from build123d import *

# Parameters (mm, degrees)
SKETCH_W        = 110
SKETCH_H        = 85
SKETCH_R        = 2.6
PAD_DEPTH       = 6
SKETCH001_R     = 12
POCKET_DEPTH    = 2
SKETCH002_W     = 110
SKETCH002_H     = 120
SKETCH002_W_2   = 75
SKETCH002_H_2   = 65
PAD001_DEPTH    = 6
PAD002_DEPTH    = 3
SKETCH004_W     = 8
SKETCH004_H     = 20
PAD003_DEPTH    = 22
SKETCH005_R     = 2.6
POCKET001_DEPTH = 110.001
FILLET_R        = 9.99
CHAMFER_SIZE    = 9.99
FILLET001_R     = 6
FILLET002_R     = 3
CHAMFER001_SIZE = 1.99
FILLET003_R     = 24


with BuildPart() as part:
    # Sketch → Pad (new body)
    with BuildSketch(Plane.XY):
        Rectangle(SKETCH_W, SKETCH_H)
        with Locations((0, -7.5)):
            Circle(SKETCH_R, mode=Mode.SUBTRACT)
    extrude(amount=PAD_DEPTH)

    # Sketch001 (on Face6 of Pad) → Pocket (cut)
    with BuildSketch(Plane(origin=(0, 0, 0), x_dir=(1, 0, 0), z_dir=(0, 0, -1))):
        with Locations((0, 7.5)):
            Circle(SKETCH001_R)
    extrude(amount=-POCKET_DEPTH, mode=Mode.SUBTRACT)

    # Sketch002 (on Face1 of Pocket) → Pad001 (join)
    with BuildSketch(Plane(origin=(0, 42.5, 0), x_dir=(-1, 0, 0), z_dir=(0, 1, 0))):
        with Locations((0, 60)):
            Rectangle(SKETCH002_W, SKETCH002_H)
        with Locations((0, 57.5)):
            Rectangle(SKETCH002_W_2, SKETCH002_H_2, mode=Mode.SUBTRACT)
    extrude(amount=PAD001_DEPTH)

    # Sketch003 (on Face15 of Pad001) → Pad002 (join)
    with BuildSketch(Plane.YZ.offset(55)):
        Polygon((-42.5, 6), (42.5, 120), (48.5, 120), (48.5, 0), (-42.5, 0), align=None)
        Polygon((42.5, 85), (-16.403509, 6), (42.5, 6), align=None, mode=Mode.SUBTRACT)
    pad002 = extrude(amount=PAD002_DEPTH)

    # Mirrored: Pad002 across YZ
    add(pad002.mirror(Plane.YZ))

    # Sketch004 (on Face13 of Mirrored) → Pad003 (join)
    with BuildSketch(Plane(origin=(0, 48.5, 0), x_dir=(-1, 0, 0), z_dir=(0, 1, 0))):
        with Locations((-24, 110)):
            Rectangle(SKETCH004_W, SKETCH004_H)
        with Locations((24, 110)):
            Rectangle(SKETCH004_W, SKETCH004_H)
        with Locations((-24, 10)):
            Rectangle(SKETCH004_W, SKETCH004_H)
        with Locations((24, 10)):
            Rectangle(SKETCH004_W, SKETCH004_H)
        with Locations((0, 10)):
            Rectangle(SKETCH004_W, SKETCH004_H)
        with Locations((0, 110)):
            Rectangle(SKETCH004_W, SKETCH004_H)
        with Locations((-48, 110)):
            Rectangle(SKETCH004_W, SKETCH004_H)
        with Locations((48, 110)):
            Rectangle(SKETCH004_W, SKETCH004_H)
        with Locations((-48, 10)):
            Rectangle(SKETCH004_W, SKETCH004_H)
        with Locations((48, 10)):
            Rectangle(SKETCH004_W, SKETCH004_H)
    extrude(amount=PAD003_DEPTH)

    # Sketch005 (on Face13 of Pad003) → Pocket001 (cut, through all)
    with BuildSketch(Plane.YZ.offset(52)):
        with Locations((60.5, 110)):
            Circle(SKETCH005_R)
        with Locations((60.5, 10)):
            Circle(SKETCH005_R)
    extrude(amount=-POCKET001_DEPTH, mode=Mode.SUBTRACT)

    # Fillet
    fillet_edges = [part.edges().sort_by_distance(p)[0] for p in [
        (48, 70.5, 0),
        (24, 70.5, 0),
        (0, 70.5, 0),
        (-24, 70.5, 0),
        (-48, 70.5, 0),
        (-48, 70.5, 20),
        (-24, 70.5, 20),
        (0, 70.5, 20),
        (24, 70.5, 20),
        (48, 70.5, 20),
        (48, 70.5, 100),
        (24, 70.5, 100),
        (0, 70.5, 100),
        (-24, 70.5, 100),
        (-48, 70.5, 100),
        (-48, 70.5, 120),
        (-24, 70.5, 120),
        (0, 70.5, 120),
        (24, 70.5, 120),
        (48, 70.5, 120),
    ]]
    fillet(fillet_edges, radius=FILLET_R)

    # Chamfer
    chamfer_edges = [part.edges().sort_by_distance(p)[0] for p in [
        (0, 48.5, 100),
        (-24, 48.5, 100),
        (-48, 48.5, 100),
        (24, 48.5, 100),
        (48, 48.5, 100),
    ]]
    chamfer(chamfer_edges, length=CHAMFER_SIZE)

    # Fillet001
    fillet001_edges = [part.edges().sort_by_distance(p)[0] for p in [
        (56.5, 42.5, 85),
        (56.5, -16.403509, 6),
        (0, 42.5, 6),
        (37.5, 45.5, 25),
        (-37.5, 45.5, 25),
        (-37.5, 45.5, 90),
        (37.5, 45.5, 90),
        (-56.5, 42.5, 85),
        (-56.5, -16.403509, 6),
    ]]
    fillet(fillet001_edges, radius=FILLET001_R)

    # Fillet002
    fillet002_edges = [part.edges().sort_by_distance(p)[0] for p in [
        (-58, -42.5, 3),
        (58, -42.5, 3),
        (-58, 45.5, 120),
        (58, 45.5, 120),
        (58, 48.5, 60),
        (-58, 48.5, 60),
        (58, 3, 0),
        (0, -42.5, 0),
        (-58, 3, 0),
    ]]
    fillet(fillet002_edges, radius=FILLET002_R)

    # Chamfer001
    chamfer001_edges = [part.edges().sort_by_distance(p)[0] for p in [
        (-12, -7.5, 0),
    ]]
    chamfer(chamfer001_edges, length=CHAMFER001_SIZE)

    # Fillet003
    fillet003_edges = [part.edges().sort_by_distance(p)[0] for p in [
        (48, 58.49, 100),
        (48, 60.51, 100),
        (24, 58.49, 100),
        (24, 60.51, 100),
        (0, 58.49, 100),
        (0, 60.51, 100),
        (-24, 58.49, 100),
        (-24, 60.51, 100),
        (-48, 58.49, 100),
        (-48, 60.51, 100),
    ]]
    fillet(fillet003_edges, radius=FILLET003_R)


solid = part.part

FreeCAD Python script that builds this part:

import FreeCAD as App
import Part
import Sketcher

V = App.Vector
Q = App.Units.Quantity


def edges_at(feature, points):
    """Names of the edges that pass closest to the given points."""
    edges = feature.Shape.Edges
    near = lambda p: min(range(len(edges)), key=lambda i: edges[i].distToShape(Part.Vertex(*p))[0])
    return sorted({f"Edge{near(p) + 1}" for p in points})

doc = App.newDocument("Part")
body = doc.addObject("PartDesign::Body", "Body")

sketch1 = doc.addObject("Sketcher::SketchObject", "Sketch")
body.addObject(sketch1)
sketch1.AttachmentSupport = (doc.XY_Plane, [""])
sketch1.MapMode = "FlatFace"
sketch1.addGeometry([
    Part.LineSegment(V(-55, 42.5, 0), V(-55, -42.5, 0)),
    Part.LineSegment(V(-55, -42.5, 0), V(55, -42.5, 0)),
    Part.LineSegment(V(55, -42.5, 0), V(55, 42.5, 0)),
    Part.LineSegment(V(55, 42.5, 0), V(-55, 42.5, 0)),
    Part.Circle(V(0, -7.5, 0), V(0, 0, 1), 2.6),
], False)
sketch1.addConstraint([
    Sketcher.Constraint("Coincident", 0, 2, 1, 1),
    Sketcher.Constraint("Coincident", 1, 2, 2, 1),
    Sketcher.Constraint("Coincident", 2, 2, 3, 1),
    Sketcher.Constraint("Coincident", 3, 2, 0, 1),
    Sketcher.Constraint("Vertical", 0),
    Sketcher.Constraint("Horizontal", 1),
    Sketcher.Constraint("Vertical", 2),
    Sketcher.Constraint("Horizontal", 3),
    Sketcher.Constraint("Symmetric", 0, 2, 2, 2, -1, 1),
    Sketcher.Constraint("PointOnObject", 4, 3, -2),
    Sketcher.Constraint("Diameter", 4, Q("5.2 mm")),
    Sketcher.Constraint("DistanceX", 1, 1, 1, 2, Q("110 mm")),
    Sketcher.Constraint("DistanceY", 0, 2, 0, 1, Q("85 mm")),
    Sketcher.Constraint("DistanceY", 0, 2, 4, 3, Q("35 mm")),
])
pad1 = doc.addObject("PartDesign::Pad", "Pad")
body.addObject(pad1)
pad1.Profile = sketch1
pad1.Length = 6

sketch2 = doc.addObject("Sketcher::SketchObject", "Sketch001")
body.addObject(sketch2)
sketch2.AttachmentSupport = (doc.XY_Plane, [""])
sketch2.MapMode = "FlatFace"
sketch2.addGeometry(Part.Circle(V(0, -8, 0), V(0, 0, 1), 12), False)
sketch2.addConstraint([
    Sketcher.Constraint("PointOnObject", 0, 3, -2),
    Sketcher.Constraint("Diameter", 0, Q("24 mm")),
    Sketcher.Constraint("DistanceY", 0, 3, -1, 1, Q("7.5 mm")),
])
pocket1 = doc.addObject("PartDesign::Pocket", "Pocket")
body.addObject(pocket1)
pocket1.Profile = sketch2
pocket1.Length = 2
pocket1.Reversed = True

sketch3 = doc.addObject("Sketcher::SketchObject", "Sketch002")
body.addObject(sketch3)
sketch3.AttachmentSupport = (doc.XZ_Plane, [""])
sketch3.MapMode = "FlatFace"
sketch3.AttachmentOffset = App.Placement(V(0, 0, -42.5), App.Rotation())
sketch3.addGeometry([
    Part.LineSegment(V(55, 120, 0), V(55, 0, 0)),
    Part.LineSegment(V(55, 0, 0), V(-55, 0, 0)),
    Part.LineSegment(V(-55, 0, 0), V(-55, 120, 0)),
    Part.LineSegment(V(-55, 120, 0), V(55, 120, 0)),
    Part.LineSegment(V(-38, 25, 0), V(38, 25, 0)),
    Part.LineSegment(V(38, 25, 0), V(38, 90, 0)),
    Part.LineSegment(V(38, 90, 0), V(-38, 90, 0)),
    Part.LineSegment(V(-38, 90, 0), V(-38, 25, 0)),
], False)
sketch3.addConstraint([
    Sketcher.Constraint("Coincident", 0, 2, 1, 1),
    Sketcher.Constraint("Coincident", 1, 2, 2, 1),
    Sketcher.Constraint("Coincident", 2, 2, 3, 1),
    Sketcher.Constraint("Coincident", 3, 2, 0, 1),
    Sketcher.Constraint("Coincident", 4, 2, 5, 1),
    Sketcher.Constraint("Coincident", 5, 2, 6, 1),
    Sketcher.Constraint("Coincident", 6, 2, 7, 1),
    Sketcher.Constraint("Coincident", 7, 2, 4, 1),
    Sketcher.Constraint("Vertical", 0),
    Sketcher.Constraint("Horizontal", 1),
    Sketcher.Constraint("Vertical", 2),
    Sketcher.Constraint("Horizontal", 3),
    Sketcher.Constraint("Horizontal", 4),
    Sketcher.Constraint("Vertical", 5),
    Sketcher.Constraint("Horizontal", 6),
    Sketcher.Constraint("Vertical", 7),
    Sketcher.Constraint("Symmetric", 0, 2, 1, 2, -1, 1),
    Sketcher.Constraint("DistanceX", 1, 2, 1, 1, Q("110 mm")),
    Sketcher.Constraint("DistanceX", 4, 1, 4, 2, Q("75 mm")),
    Sketcher.Constraint("DistanceY", 0, 2, 0, 1, Q("120 mm")),
    Sketcher.Constraint("DistanceY", 5, 1, 5, 2, Q("65 mm")),
    Sketcher.Constraint("DistanceY", -1, 1, 4, 2, Q("25 mm")),
    Sketcher.Constraint("DistanceX", -1, 1, 4, 2, Q("37.5 mm")),
])
pad2 = doc.addObject("PartDesign::Pad", "Pad001")
body.addObject(pad2)
pad2.Profile = sketch3
pad2.Length = 6
pad2.Reversed = True

sketch4 = doc.addObject("Sketcher::SketchObject", "Sketch003")
body.addObject(sketch4)
sketch4.AttachmentSupport = (doc.YZ_Plane, [""])
sketch4.MapMode = "FlatFace"
sketch4.AttachmentOffset = App.Placement(V(0, 0, 55), App.Rotation())
sketch4.addGeometry([
    Part.LineSegment(V(42, 120, 0), V(-42, 6, 0)),
    Part.LineSegment(V(-42, 6, 0), V(-42, 0, 0)),
    Part.LineSegment(V(-42, 0, 0), V(48, 0, 0)),
    Part.LineSegment(V(48, 0, 0), V(48, 120, 0)),
    Part.LineSegment(V(48, 120, 0), V(42, 120, 0)),
    Part.LineSegment(V(42, 85, 0), V(42, 6, 0)),
    Part.LineSegment(V(42, 6, 0), V(-16, 6, 0)),
    Part.LineSegment(V(-16, 6, 0), V(42, 85, 0)),
], False)
sketch4.addConstraint([
    Sketcher.Constraint("Coincident", 0, 2, 1, 1),
    Sketcher.Constraint("Coincident", 1, 2, 2, 1),
    Sketcher.Constraint("Coincident", 2, 2, 3, 1),
    Sketcher.Constraint("Coincident", 3, 2, 4, 1),
    Sketcher.Constraint("Coincident", 4, 2, 0, 1),
    Sketcher.Constraint("Coincident", 5, 2, 6, 1),
    Sketcher.Constraint("Coincident", 6, 2, 7, 1),
    Sketcher.Constraint("Coincident", 7, 2, 5, 1),
    Sketcher.Constraint("Vertical", 1),
    Sketcher.Constraint("Horizontal", 2),
    Sketcher.Constraint("Vertical", 3),
    Sketcher.Constraint("Horizontal", 4),
    Sketcher.Constraint("Vertical", 5),
    Sketcher.Constraint("Horizontal", 6),
    Sketcher.Constraint("Symmetric", 0, 2, 5, 2, -2),
    Sketcher.Constraint("PointOnObject", 1, 2, -1),
    Sketcher.Constraint("Parallel", 0, 7),
    Sketcher.Constraint("Vertical", 4, 2, 5, 2),
    Sketcher.Constraint("Equal", 4, 1),
    Sketcher.Constraint("DistanceX", 2, 1, 2, 2, Q("91 mm")),
    Sketcher.Constraint("DistanceX", 4, 2, 4, 1, Q("6 mm")),
    Sketcher.Constraint("DistanceY", 3, 1, 3, 2, Q("120 mm")),
    Sketcher.Constraint("DistanceY", 5, 2, 5, 1, Q("79 mm")),
])
pad3 = doc.addObject("PartDesign::Pad", "Pad002")
body.addObject(pad3)
pad3.Profile = sketch4
pad3.Length = 3
doc.recompute()

mirrored = doc.addObject("PartDesign::Mirrored", "Mirrored")
body.addObject(mirrored)
mirrored.Originals = [pad3]
mirrored.MirrorPlane = (doc.YZ_Plane, [""])
body.Tip = mirrored

sketch5 = doc.addObject("Sketcher::SketchObject", "Sketch004")
body.addObject(sketch5)
sketch5.AttachmentSupport = (doc.XZ_Plane, [""])
sketch5.MapMode = "FlatFace"
sketch5.AttachmentOffset = App.Placement(V(0, 0, -48.5), App.Rotation())
sketch5.addGeometry([
    Part.LineSegment(V(28, 120, 0), V(28, 100, 0)),
    Part.LineSegment(V(28, 100, 0), V(20, 100, 0)),
    Part.LineSegment(V(20, 100, 0), V(20, 120, 0)),
    Part.LineSegment(V(20, 120, 0), V(28, 120, 0)),
    Part.LineSegment(V(-20, 120, 0), V(-20, 100, 0)),
    Part.LineSegment(V(-20, 100, 0), V(-28, 100, 0)),
    Part.LineSegment(V(-28, 100, 0), V(-28, 120, 0)),
    Part.LineSegment(V(-28, 120, 0), V(-20, 120, 0)),
    Part.LineSegment(V(28, 20, 0), V(28, 0, 0)),
    Part.LineSegment(V(28, 0, 0), V(20, 0, 0)),
    Part.LineSegment(V(20, 0, 0), V(20, 20, 0)),
    Part.LineSegment(V(20, 20, 0), V(28, 20, 0)),
    Part.LineSegment(V(-20, 20, 0), V(-20, 0, 0)),
    Part.LineSegment(V(-20, 0, 0), V(-28, 0, 0)),
    Part.LineSegment(V(-28, 0, 0), V(-28, 20, 0)),
    Part.LineSegment(V(-28, 20, 0), V(-20, 20, 0)),
    Part.LineSegment(V(4, 20, 0), V(4, 0, 0)),
    Part.LineSegment(V(4, 0, 0), V(-4, 0, 0)),
    Part.LineSegment(V(-4, 0, 0), V(-4, 20, 0)),
    Part.LineSegment(V(-4, 20, 0), V(4, 20, 0)),
    Part.LineSegment(V(4, 120, 0), V(4, 100, 0)),
    Part.LineSegment(V(4, 100, 0), V(-4, 100, 0)),
    Part.LineSegment(V(-4, 100, 0), V(-4, 120, 0)),
    Part.LineSegment(V(-4, 120, 0), V(4, 120, 0)),
    Part.LineSegment(V(52, 120, 0), V(52, 100, 0)),
    Part.LineSegment(V(52, 100, 0), V(44, 100, 0)),
    Part.LineSegment(V(44, 100, 0), V(44, 120, 0)),
    Part.LineSegment(V(44, 120, 0), V(52, 120, 0)),
    Part.LineSegment(V(-44, 120, 0), V(-44, 100, 0)),
    Part.LineSegment(V(-44, 100, 0), V(-52, 100, 0)),
    Part.LineSegment(V(-52, 100, 0), V(-52, 120, 0)),
    Part.LineSegment(V(-52, 120, 0), V(-44, 120, 0)),
    Part.LineSegment(V(52, 20, 0), V(52, 0, 0)),
    Part.LineSegment(V(52, 0, 0), V(44, 0, 0)),
    Part.LineSegment(V(44, 0, 0), V(44, 20, 0)),
    Part.LineSegment(V(44, 20, 0), V(52, 20, 0)),
    Part.LineSegment(V(-44, 20, 0), V(-44, 0, 0)),
    Part.LineSegment(V(-44, 0, 0), V(-52, 0, 0)),
    Part.LineSegment(V(-52, 0, 0), V(-52, 20, 0)),
    Part.LineSegment(V(-52, 20, 0), V(-44, 20, 0)),
], False)
sketch5.addConstraint([
    Sketcher.Constraint("Coincident", 0, 2, 1, 1),
    Sketcher.Constraint("Coincident", 1, 2, 2, 1),
    Sketcher.Constraint("Coincident", 2, 2, 3, 1),
    Sketcher.Constraint("Coincident", 3, 2, 0, 1),
    Sketcher.Constraint("Coincident", 4, 2, 5, 1),
    Sketcher.Constraint("Coincident", 5, 2, 6, 1),
    Sketcher.Constraint("Coincident", 6, 2, 7, 1),
    Sketcher.Constraint("Coincident", 7, 2, 4, 1),
    Sketcher.Constraint("Coincident", 8, 2, 9, 1),
    Sketcher.Constraint("Coincident", 9, 2, 10, 1),
    Sketcher.Constraint("Coincident", 10, 2, 11, 1),
    Sketcher.Constraint("Coincident", 11, 2, 8, 1),
    Sketcher.Constraint("Coincident", 12, 2, 13, 1),
    Sketcher.Constraint("Coincident", 13, 2, 14, 1),
    Sketcher.Constraint("Coincident", 14, 2, 15, 1),
    Sketcher.Constraint("Coincident", 15, 2, 12, 1),
    Sketcher.Constraint("Coincident", 16, 2, 17, 1),
    Sketcher.Constraint("Coincident", 17, 2, 18, 1),
    Sketcher.Constraint("Coincident", 18, 2, 19, 1),
    Sketcher.Constraint("Coincident", 19, 2, 16, 1),
    Sketcher.Constraint("Coincident", 20, 2, 21, 1),
    Sketcher.Constraint("Coincident", 21, 2, 22, 1),
    Sketcher.Constraint("Coincident", 22, 2, 23, 1),
    Sketcher.Constraint("Coincident", 23, 2, 20, 1),
    Sketcher.Constraint("Coincident", 24, 2, 25, 1),
    Sketcher.Constraint("Coincident", 25, 2, 26, 1),
    Sketcher.Constraint("Coincident", 26, 2, 27, 1),
    Sketcher.Constraint("Coincident", 27, 2, 24, 1),
    Sketcher.Constraint("Coincident", 28, 2, 29, 1),
    Sketcher.Constraint("Coincident", 29, 2, 30, 1),
    Sketcher.Constraint("Coincident", 30, 2, 31, 1),
    Sketcher.Constraint("Coincident", 31, 2, 28, 1),
    Sketcher.Constraint("Coincident", 32, 2, 33, 1),
    Sketcher.Constraint("Coincident", 33, 2, 34, 1),
    Sketcher.Constraint("Coincident", 34, 2, 35, 1),
    Sketcher.Constraint("Coincident", 35, 2, 32, 1),
    Sketcher.Constraint("Coincident", 36, 2, 37, 1),
    Sketcher.Constraint("Coincident", 37, 2, 38, 1),
    Sketcher.Constraint("Coincident", 38, 2, 39, 1),
    Sketcher.Constraint("Coincident", 39, 2, 36, 1),
    Sketcher.Constraint("Vertical", 0),
    Sketcher.Constraint("Horizontal", 1),
    Sketcher.Constraint("Vertical", 2),
    Sketcher.Constraint("Horizontal", 3),
    Sketcher.Constraint("Vertical", 4),
    Sketcher.Constraint("Horizontal", 5),
    Sketcher.Constraint("Vertical", 6),
    Sketcher.Constraint("Horizontal", 7),
    Sketcher.Constraint("Vertical", 8),
    Sketcher.Constraint("Horizontal", 9),
    Sketcher.Constraint("Vertical", 10),
    Sketcher.Constraint("Horizontal", 11),
    Sketcher.Constraint("Vertical", 12),
    Sketcher.Constraint("Horizontal", 13),
    Sketcher.Constraint("Vertical", 14),
    Sketcher.Constraint("Horizontal", 15),
    Sketcher.Constraint("Vertical", 16),
    Sketcher.Constraint("Horizontal", 17),
    Sketcher.Constraint("Vertical", 18),
    Sketcher.Constraint("Horizontal", 19),
    Sketcher.Constraint("Vertical", 20),
    Sketcher.Constraint("Horizontal", 21),
    Sketcher.Constraint("Vertical", 22),
    Sketcher.Constraint("Horizontal", 23),
    Sketcher.Constraint("Vertical", 24),
    Sketcher.Constraint("Horizontal", 25),
    Sketcher.Constraint("Vertical", 26),
    Sketcher.Constraint("Horizontal", 27),
    Sketcher.Constraint("Vertical", 28),
    Sketcher.Constraint("Horizontal", 29),
    Sketcher.Constraint("Vertical", 30),
    Sketcher.Constraint("Horizontal", 31),
    Sketcher.Constraint("Vertical", 32),
    Sketcher.Constraint("Horizontal", 33),
    Sketcher.Constraint("Vertical", 34),
    Sketcher.Constraint("Horizontal", 35),
    Sketcher.Constraint("Vertical", 36),
    Sketcher.Constraint("Horizontal", 37),
    Sketcher.Constraint("Vertical", 38),
    Sketcher.Constraint("Horizontal", 39),
    Sketcher.Constraint("Symmetric", 9, 2, 12, 2, -1, 1),
    Sketcher.Constraint("Symmetric", 16, 2, 17, 2, -1, 1),
    Sketcher.Constraint("Symmetric", 33, 2, 36, 2, -1, 1),
    Sketcher.Constraint("Symmetric", 1, 2, 4, 2, -2),
    Sketcher.Constraint("Symmetric", 3, 2, 6, 2, -2),
    Sketcher.Constraint("Symmetric", 8, 2, 13, 2, -2),
    Sketcher.Constraint("Symmetric", 25, 2, 28, 2, -2),
    Sketcher.Constraint("Symmetric", 27, 2, 30, 2, -2),
    Sketcher.Constraint("Symmetric", 32, 2, 37, 2, -2),
    Sketcher.Constraint("Horizontal", 11, 2, 14, 2),
    Sketcher.Constraint("Horizontal", 15, 2, 18, 2),
    Sketcher.Constraint("Horizontal", 5, 2, 20, 2),
    Sketcher.Constraint("Horizontal", 7, 2, 22, 2),
    Sketcher.Constraint("Horizontal", 21, 2, 24, 2),
    Sketcher.Constraint("Horizontal", 23, 2, 26, 2),
    Sketcher.Constraint("Horizontal", 19, 2, 34, 2),
    Sketcher.Constraint("Horizontal", 35, 2, 38, 2),
    Sketcher.Constraint("Vertical", 3, 2, 8, 2),
    Sketcher.Constraint("Vertical", 2, 2, 9, 2),
    Sketcher.Constraint("Vertical", 19, 2, 20, 2),
    Sketcher.Constraint("Vertical", 18, 2, 21, 2),
    Sketcher.Constraint("Vertical", 27, 2, 32, 2),
    Sketcher.Constraint("Vertical", 26, 2, 33, 2),
    Sketcher.Constraint("Equal", 15, 17),
    Sketcher.Constraint("Equal", 23, 25),
    Sketcher.Constraint("Equal", 6, 8),
    Sketcher.Constraint("DistanceX", 1, 2, 1, 1, Q("8 mm")),
    Sketcher.Constraint("DistanceY", 0, 2, 0, 1, Q("20 mm")),
    Sketcher.Constraint("DistanceX", -1, 1, 0, 2, Q("28 mm")),
    Sketcher.Constraint("DistanceY", -1, 1, 0, 2, Q("100 mm")),
    Sketcher.Constraint("DistanceX", -1, 1, 24, 2, Q("52 mm")),
])
pad4 = doc.addObject("PartDesign::Pad", "Pad003")
body.addObject(pad4)
pad4.Profile = sketch5
pad4.Length = 22
pad4.Reversed = True

sketch6 = doc.addObject("Sketcher::SketchObject", "Sketch005")
body.addObject(sketch6)
sketch6.AttachmentSupport = (doc.YZ_Plane, [""])
sketch6.MapMode = "FlatFace"
sketch6.AttachmentOffset = App.Placement(V(0, 0, 52), App.Rotation())
sketch6.addGeometry([
    Part.Circle(V(60.5, 110, 0), V(0, 0, 1), 2.6),
    Part.Circle(V(60.5, 10, 0), V(0, 0, 1), 2.6),
], False)
sketch6.addConstraint([
    Sketcher.Constraint("Equal", 0, 1),
    Sketcher.Constraint("Vertical", 0, 3, 1, 3),
    Sketcher.Constraint("Diameter", 0, Q("5.2 mm")),
    Sketcher.Constraint("DistanceY", -1, 1, 0, 3, Q("110 mm")),
    Sketcher.Constraint("DistanceY", -1, 1, 1, 3, Q("10 mm")),
    Sketcher.Constraint("DistanceX", -1, 1, 0, 3, Q("60.5 mm")),
])
pocket2 = doc.addObject("PartDesign::Pocket", "Pocket001")
body.addObject(pocket2)
pocket2.Profile = sketch6
pocket2.Type = "ThroughAll"
doc.recompute()

fillet = doc.addObject("PartDesign::Fillet", "Fillet")
body.addObject(fillet)
fillet.Base = (pocket2, edges_at(pocket2, [
    (48, 70.5, 0),
    (24, 70.5, 0),
    (0, 70.5, 0),
    (-24, 70.5, 0),
    (-48, 70.5, 0),
    (-48, 70.5, 20),
    (-24, 70.5, 20),
    (0, 70.5, 20),
    (24, 70.5, 20),
    (48, 70.5, 20),
    (48, 70.5, 100),
    (24, 70.5, 100),
    (0, 70.5, 100),
    (-24, 70.5, 100),
    (-48, 70.5, 100),
    (-48, 70.5, 120),
    (-24, 70.5, 120),
    (0, 70.5, 120),
    (24, 70.5, 120),
    (48, 70.5, 120),
]))
fillet.Radius = 9.99
doc.recompute()

chamfer = doc.addObject("PartDesign::Chamfer", "Chamfer")
body.addObject(chamfer)
chamfer.Base = (fillet, edges_at(fillet, [
    (0, 48.5, 100),
    (-24, 48.5, 100),
    (-48, 48.5, 100),
    (24, 48.5, 100),
    (48, 48.5, 100),
]))
chamfer.Size = 9.99
doc.recompute()

fillet2 = doc.addObject("PartDesign::Fillet", "Fillet001")
body.addObject(fillet2)
fillet2.Base = (chamfer, edges_at(chamfer, [
    (56.5, 42.5, 85),
    (56.5, -16.404, 6),
    (0, 42.5, 6),
    (37.5, 45.5, 25),
    (-37.5, 45.5, 25),
    (-37.5, 45.5, 90),
    (37.5, 45.5, 90),
    (-56.5, 42.5, 85),
    (-56.5, -16.404, 6),
]))
fillet2.Radius = 6
doc.recompute()

fillet3 = doc.addObject("PartDesign::Fillet", "Fillet002")
body.addObject(fillet3)
fillet3.Base = (fillet2, edges_at(fillet2, [
    (-58, -42.5, 3),
    (58, -42.5, 3),
    (-58, 45.5, 120),
    (58, 45.5, 120),
    (58, 48.5, 60),
    (-58, 48.5, 60),
    (58, 3, 0),
    (0, -42.5, 0),
    (-58, 3, 0),
]))
fillet3.Radius = 3
doc.recompute()

chamfer2 = doc.addObject("PartDesign::Chamfer", "Chamfer001")
body.addObject(chamfer2)
chamfer2.Base = (fillet3, edges_at(fillet3, [(-12, -7.5, 0)]))
chamfer2.Size = 1.99
doc.recompute()

fillet4 = doc.addObject("PartDesign::Fillet", "Fillet003")
body.addObject(fillet4)
fillet4.Base = (chamfer2, edges_at(chamfer2, [
    (48, 58.49, 100),
    (48, 60.51, 100),
    (24, 58.49, 100),
    (24, 60.51, 100),
    (0, 58.49, 100),
    (0, 60.51, 100),
    (-24, 58.49, 100),
    (-24, 60.51, 100),
    (-48, 58.49, 100),
    (-48, 60.51, 100),
]))
fillet4.Radius = 24

doc.recompute()
